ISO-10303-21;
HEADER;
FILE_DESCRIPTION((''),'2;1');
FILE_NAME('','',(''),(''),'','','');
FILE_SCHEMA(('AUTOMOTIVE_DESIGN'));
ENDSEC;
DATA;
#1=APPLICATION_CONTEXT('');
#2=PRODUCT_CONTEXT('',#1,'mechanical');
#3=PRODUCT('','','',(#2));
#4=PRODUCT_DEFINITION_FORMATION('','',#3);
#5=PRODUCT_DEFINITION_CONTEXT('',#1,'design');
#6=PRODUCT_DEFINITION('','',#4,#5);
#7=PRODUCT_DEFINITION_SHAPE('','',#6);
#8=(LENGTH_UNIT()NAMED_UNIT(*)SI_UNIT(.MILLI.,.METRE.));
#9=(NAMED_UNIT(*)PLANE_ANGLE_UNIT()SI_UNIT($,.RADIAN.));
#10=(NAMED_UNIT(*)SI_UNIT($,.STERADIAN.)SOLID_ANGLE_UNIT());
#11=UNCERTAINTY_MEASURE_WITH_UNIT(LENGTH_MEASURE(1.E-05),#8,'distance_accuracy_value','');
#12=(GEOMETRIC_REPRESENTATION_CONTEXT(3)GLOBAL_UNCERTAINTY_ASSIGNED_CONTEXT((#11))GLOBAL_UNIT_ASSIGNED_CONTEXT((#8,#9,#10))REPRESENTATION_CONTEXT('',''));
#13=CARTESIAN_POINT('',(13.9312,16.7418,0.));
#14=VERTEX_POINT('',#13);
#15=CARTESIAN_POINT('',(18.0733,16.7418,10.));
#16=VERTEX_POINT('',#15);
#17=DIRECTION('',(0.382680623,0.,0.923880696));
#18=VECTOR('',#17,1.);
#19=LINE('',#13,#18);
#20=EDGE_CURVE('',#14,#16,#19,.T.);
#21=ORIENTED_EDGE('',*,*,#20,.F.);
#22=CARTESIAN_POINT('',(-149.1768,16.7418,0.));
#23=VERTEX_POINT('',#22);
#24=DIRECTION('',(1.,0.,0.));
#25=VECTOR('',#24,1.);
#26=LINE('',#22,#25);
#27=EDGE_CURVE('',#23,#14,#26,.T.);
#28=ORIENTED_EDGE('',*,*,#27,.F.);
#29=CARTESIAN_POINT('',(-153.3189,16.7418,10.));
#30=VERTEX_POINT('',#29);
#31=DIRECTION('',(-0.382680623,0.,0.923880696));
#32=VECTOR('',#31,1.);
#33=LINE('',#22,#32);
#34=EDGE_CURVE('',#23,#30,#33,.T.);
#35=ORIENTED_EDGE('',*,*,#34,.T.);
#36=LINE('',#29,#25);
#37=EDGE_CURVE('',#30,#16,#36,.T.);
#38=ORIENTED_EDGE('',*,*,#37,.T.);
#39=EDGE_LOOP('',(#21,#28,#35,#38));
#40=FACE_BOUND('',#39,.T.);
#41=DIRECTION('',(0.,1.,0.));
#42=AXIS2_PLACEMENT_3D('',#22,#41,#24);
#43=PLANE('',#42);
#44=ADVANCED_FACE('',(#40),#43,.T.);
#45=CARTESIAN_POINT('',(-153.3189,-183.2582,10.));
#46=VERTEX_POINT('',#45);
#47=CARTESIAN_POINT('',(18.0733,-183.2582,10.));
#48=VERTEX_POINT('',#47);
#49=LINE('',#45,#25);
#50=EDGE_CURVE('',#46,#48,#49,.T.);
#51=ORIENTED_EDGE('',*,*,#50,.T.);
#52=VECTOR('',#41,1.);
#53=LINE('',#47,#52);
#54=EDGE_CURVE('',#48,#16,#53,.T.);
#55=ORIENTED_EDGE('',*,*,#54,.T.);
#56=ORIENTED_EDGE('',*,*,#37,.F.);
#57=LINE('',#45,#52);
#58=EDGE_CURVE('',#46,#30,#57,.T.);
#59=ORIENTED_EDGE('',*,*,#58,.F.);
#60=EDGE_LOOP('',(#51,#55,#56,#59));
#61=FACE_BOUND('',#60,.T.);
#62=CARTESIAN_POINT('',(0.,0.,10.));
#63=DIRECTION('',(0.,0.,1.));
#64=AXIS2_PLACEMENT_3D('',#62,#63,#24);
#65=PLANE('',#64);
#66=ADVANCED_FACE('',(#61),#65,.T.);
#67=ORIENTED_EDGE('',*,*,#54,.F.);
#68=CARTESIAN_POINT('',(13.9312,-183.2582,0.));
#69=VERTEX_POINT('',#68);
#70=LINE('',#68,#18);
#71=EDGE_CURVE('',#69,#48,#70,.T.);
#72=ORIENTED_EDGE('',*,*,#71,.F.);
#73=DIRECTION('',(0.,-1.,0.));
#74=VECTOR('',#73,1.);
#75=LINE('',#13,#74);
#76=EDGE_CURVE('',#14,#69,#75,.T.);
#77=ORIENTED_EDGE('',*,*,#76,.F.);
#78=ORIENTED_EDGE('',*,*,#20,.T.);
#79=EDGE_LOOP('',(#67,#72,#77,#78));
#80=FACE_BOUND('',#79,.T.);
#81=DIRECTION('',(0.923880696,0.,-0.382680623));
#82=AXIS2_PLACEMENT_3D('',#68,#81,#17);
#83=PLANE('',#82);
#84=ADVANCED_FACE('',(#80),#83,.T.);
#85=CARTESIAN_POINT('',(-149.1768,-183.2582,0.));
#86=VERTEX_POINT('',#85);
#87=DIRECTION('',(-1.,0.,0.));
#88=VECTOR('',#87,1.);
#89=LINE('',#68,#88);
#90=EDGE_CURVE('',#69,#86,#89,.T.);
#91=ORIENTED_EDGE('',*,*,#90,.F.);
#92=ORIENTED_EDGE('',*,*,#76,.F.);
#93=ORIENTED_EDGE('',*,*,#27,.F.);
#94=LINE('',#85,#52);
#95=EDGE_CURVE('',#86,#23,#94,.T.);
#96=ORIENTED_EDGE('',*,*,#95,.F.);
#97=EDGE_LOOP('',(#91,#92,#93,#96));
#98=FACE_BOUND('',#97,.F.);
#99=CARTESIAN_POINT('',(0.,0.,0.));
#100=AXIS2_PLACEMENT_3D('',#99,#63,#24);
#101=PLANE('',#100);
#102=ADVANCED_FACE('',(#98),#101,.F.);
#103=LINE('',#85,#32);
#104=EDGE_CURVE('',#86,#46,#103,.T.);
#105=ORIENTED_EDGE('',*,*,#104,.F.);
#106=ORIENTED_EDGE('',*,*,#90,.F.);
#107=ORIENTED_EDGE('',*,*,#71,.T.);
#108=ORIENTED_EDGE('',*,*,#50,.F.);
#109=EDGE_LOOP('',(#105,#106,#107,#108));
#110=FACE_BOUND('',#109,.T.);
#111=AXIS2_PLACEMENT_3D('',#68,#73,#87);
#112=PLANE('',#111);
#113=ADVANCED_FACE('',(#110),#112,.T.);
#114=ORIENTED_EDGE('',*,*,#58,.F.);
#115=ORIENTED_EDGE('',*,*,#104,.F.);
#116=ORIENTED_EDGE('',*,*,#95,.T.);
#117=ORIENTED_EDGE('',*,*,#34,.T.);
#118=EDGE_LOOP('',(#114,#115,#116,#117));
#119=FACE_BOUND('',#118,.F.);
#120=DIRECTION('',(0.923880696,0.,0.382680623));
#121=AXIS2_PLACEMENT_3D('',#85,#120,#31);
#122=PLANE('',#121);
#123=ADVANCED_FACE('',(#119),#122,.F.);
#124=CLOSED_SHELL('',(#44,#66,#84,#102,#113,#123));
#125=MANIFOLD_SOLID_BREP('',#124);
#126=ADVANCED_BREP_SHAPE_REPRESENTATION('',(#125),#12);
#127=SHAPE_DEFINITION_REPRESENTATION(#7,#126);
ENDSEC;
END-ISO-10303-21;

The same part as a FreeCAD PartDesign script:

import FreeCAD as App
import Part
import Sketcher

V = App.Vector
Q = App.Units.Quantity

doc = App.newDocument("Part")
body = doc.addObject("PartDesign::Body", "Body")

# Sketch on XY plane
sketch1 = doc.addObject("Sketcher::SketchObject", "Sketch")
body.addObject(sketch1)
sketch1.AttachmentSupport = (doc.XY_Plane, [""])
sketch1.MapMode = "FlatFace"
sketch1.addGeometry(Part.LineSegment(V(14, 17, 0), V(-149, 17, 0)), False)
sketch1.addGeometry(Part.LineSegment(V(-149, 17, 0), V(-149, -183, 0)), False)
sketch1.addGeometry(Part.LineSegment(V(-149, -183, 0), V(14, -183, 0)), False)
sketch1.addGeometry(Part.LineSegment(V(14, -183, 0), V(14, 17, 0)), False)
sketch1.addConstraint(Sketcher.Constraint("Coincident", 0, 2, 1, 1))
sketch1.addConstraint(Sketcher.Constraint("Coincident", 1, 2, 2, 1))
sketch1.addConstraint(Sketcher.Constraint("Coincident", 2, 2, 3, 1))
sketch1.addConstraint(Sketcher.Constraint("Coincident", 3, 2, 0, 1))
sketch1.addConstraint(Sketcher.Constraint("Horizontal", 0))
sketch1.addConstraint(Sketcher.Constraint("Vertical", 1))
sketch1.addConstraint(Sketcher.Constraint("Horizontal", 2))
sketch1.addConstraint(Sketcher.Constraint("Vertical", 3))
sketch1.addConstraint(Sketcher.Constraint("DistanceY", 1, 2, 1, 1, Q("200 mm")))
sketch1.addConstraint(Sketcher.Constraint("DistanceX", 0, 2, 0, 1, Q("163.108 mm")))
sketch1.addConstraint(Sketcher.Constraint("DistanceY", -1, 1, 0, 2, Q("16.7418 mm")))
sketch1.addConstraint(Sketcher.Constraint("DistanceX", -1, 1, 2, 2, Q("13.9312 mm")))
pad1 = doc.addObject("PartDesign::Pad", "Pad")
body.addObject(pad1)
pad1.Profile = sketch1
pad1.Length = 10

# Sketch on XZ plane
sketch2 = doc.addObject("Sketcher::SketchObject", "Sketch001")
body.addObject(sketch2)
sketch2.AttachmentSupport = (doc.XZ_Plane, [""])
sketch2.MapMode = "FlatFace"
sketch2.AttachmentOffset = App.Placement(V(0, 0, 183.2582), App.Rotation())
sketch2.addGeometry(Part.LineSegment(V(18.1, 10, 0), V(13.9, 10, 0)), False)
sketch2.addGeometry(Part.LineSegment(V(13.9, 10, 0), V(13.9, 0, 0)), False)
sketch2.addGeometry(Part.LineSegment(V(13.9, 0, 0), V(18.1, 10, 0)), False)
sketch2.addGeometry(Part.LineSegment(V(-149.2, 0, 0), V(-149.2, 10, 0)), False)
sketch2.addGeometry(Part.LineSegment(V(-149.2, 10, 0), V(-153.3, 10, 0)), False)
sketch2.addGeometry(Part.LineSegment(V(-153.3, 10, 0), V(-149.2, 0, 0)), False)
sketch2.addConstraint(Sketcher.Constraint("Coincident", 0, 2, 1, 1))
sketch2.addConstraint(Sketcher.Constraint("Coincident", 1, 2, 2, 1))
sketch2.addConstraint(Sketcher.Constraint("Coincident", 2, 2, 0, 1))
sketch2.addConstraint(Sketcher.Constraint("Coincident", 3, 2, 4, 1))
sketch2.addConstraint(Sketcher.Constraint("Coincident", 4, 2, 5, 1))
sketch2.addConstraint(Sketcher.Constraint("Coincident", 5, 2, 3, 1))
sketch2.addConstraint(Sketcher.Constraint("Horizontal", 0))
sketch2.addConstraint(Sketcher.Constraint("Vertical", 1))
sketch2.addConstraint(Sketcher.Constraint("Vertical", 3))
sketch2.addConstraint(Sketcher.Constraint("Horizontal", 4))
sketch2.addConstraint(Sketcher.Constraint("PointOnObject", 1, 2, -1))
sketch2.addConstraint(Sketcher.Constraint("PointOnObject", 5, 2, -1))
sketch2.addConstraint(Sketcher.Constraint("Horizontal", 2, 2, 3, 2))
sketch2.addConstraint(Sketcher.Constraint("Equal", 0, 4))
sketch2.addConstraint(Sketcher.Constraint("DistanceY", 1, 2, 1, 1, Q("10 mm")))
sketch2.addConstraint(Sketcher.Constraint("Angle", 2, Q("67.5002 deg")))
sketch2.addConstraint(Sketcher.Constraint("DistanceX", 3, 2, 2, 2, Q("167.25 mm")))
sketch2.addConstraint(Sketcher.Constraint("DistanceX", 4, 2, -1, 1, Q("153.319 mm")))
pad2 = doc.addObject("PartDesign::Pad", "Pad001")
body.addObject(pad2)
pad2.Profile = sketch2
pad2.Length = 200
pad2.Reversed = True

doc.recompute()
